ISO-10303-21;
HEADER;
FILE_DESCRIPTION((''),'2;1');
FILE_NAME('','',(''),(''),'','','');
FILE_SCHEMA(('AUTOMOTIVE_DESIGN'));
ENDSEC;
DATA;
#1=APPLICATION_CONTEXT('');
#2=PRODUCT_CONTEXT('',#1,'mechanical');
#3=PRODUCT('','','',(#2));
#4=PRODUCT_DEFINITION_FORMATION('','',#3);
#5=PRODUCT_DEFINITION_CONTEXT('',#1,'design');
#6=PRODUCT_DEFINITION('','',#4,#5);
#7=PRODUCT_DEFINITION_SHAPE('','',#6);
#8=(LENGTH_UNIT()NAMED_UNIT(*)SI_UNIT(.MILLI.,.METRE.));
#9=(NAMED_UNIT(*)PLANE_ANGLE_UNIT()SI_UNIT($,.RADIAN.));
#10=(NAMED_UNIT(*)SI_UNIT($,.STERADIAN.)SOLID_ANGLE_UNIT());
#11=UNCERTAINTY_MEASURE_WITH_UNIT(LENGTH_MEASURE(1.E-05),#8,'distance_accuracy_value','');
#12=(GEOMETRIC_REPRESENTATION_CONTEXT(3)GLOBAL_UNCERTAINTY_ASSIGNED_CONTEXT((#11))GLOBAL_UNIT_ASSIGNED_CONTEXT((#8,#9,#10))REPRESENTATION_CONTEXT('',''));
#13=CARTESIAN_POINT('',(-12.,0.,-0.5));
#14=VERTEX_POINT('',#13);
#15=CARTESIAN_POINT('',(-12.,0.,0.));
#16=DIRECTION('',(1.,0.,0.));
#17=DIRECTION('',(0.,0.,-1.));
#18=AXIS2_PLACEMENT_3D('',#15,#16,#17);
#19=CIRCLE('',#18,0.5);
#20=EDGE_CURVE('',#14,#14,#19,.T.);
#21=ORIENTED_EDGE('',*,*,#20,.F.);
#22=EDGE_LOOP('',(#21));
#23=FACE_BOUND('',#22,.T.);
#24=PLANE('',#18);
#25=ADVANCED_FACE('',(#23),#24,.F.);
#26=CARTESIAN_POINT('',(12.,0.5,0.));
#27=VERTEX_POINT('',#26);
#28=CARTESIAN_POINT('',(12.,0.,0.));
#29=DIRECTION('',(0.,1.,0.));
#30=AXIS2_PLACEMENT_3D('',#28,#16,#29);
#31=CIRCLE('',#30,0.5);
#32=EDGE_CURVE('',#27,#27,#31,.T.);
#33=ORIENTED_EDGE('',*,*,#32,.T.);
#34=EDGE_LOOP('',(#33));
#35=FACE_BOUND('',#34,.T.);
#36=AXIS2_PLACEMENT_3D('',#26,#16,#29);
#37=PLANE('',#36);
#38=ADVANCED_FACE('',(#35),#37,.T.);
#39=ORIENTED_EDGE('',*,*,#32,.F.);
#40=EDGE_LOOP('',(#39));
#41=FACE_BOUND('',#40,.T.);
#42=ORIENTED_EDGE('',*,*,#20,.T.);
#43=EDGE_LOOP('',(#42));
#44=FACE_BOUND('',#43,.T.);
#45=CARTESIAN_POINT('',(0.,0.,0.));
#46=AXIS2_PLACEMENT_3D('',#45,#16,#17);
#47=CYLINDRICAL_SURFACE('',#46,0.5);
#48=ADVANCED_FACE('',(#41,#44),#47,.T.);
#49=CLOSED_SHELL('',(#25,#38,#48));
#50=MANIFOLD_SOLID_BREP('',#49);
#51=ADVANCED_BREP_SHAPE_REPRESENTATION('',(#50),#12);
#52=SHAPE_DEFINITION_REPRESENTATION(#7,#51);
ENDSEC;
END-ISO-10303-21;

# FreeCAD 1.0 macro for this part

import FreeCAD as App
import Part
import Sketcher
from FreeCAD import Vector
Q = App.Units.Quantity


def add_polygon(sketch, points):
    """Adds a closed chain of lines whose ends are joined by coincident constraints."""
    first, n = sketch.GeometryCount, len(points)
    for a, b in zip(points, points[1:] + points[:1]):
        sketch.addGeometry(Part.LineSegment(App.Vector(*a, 0), App.Vector(*b, 0)), False)
    for i in range(n):
        sketch.addConstraint(Sketcher.Constraint("Coincident", first + i, 2, first + (i + 1) % n, 1))

doc = App.newDocument("Part")
body = doc.addObject("PartDesign::Body", "Body")

# Sketch on XY plane
sketch1 = body.newObject("Sketcher::SketchObject", "Sketch")
sketch1.AttachmentSupport = (doc.getObject("XY_Plane"), [""])
sketch1.MapMode = "FlatFace"
add_polygon(sketch1, [(0, 0.5), (0, 0), (-12, 0), (-12, 0.5)])  # lines 0-3
sketch1.addConstraint(Sketcher.Constraint("Vertical", 0))
sketch1.addConstraint(Sketcher.Constraint("Horizontal", 1))
sketch1.addConstraint(Sketcher.Constraint("Vertical", 2))
sketch1.addConstraint(Sketcher.Constraint("Horizontal", 3))
sketch1.addConstraint(Sketcher.Constraint("Coincident", 0, 2, -1, 1))
sketch1.addConstraint(Sketcher.Constraint("DistanceX", 1, 2, 1, 1, Q("12 mm")))
sketch1.addConstraint(Sketcher.Constraint("DistanceY", 0, 2, 0, 1, Q("0.5 mm")))
revolution = body.newObject("PartDesign::Revolution", "Revolution")
revolution.Profile = sketch1
revolution.ReferenceAxis = (sketch1, ["H_Axis"])
revolution.Angle = 360

# Sketch on XY plane
sketch2 = body.newObject("Sketcher::SketchObject", "Sketch001")
sketch2.AttachmentSupport = (doc.getObject("XY_Plane"), [""])
sketch2.MapMode = "FlatFace"
add_polygon(sketch2, [(0, 0.5), (0, 0), (12, 0), (12, 0.5)])  # lines 0-3
sketch2.addConstraint(Sketcher.Constraint("Vertical", 0))
sketch2.addConstraint(Sketcher.Constraint("Horizontal", 1))
sketch2.addConstraint(Sketcher.Constraint("Vertical", 2))
sketch2.addConstraint(Sketcher.Constraint("Horizontal", 3))
sketch2.addConstraint(Sketcher.Constraint("Coincident", 0, 2, -1, 1))
sketch2.addConstraint(Sketcher.Constraint("DistanceX", 1, 1, 1, 2, Q("12 mm")))
sketch2.addConstraint(Sketcher.Constraint("DistanceY", 0, 2, 0, 1, Q("0.5 mm")))
revolution2 = body.newObject("PartDesign::Revolution", "Revolution001")
revolution2.Profile = sketch2
revolution2.ReferenceAxis = (sketch2, ["H_Axis"])
revolution2.Angle = 360

doc.recompute()
